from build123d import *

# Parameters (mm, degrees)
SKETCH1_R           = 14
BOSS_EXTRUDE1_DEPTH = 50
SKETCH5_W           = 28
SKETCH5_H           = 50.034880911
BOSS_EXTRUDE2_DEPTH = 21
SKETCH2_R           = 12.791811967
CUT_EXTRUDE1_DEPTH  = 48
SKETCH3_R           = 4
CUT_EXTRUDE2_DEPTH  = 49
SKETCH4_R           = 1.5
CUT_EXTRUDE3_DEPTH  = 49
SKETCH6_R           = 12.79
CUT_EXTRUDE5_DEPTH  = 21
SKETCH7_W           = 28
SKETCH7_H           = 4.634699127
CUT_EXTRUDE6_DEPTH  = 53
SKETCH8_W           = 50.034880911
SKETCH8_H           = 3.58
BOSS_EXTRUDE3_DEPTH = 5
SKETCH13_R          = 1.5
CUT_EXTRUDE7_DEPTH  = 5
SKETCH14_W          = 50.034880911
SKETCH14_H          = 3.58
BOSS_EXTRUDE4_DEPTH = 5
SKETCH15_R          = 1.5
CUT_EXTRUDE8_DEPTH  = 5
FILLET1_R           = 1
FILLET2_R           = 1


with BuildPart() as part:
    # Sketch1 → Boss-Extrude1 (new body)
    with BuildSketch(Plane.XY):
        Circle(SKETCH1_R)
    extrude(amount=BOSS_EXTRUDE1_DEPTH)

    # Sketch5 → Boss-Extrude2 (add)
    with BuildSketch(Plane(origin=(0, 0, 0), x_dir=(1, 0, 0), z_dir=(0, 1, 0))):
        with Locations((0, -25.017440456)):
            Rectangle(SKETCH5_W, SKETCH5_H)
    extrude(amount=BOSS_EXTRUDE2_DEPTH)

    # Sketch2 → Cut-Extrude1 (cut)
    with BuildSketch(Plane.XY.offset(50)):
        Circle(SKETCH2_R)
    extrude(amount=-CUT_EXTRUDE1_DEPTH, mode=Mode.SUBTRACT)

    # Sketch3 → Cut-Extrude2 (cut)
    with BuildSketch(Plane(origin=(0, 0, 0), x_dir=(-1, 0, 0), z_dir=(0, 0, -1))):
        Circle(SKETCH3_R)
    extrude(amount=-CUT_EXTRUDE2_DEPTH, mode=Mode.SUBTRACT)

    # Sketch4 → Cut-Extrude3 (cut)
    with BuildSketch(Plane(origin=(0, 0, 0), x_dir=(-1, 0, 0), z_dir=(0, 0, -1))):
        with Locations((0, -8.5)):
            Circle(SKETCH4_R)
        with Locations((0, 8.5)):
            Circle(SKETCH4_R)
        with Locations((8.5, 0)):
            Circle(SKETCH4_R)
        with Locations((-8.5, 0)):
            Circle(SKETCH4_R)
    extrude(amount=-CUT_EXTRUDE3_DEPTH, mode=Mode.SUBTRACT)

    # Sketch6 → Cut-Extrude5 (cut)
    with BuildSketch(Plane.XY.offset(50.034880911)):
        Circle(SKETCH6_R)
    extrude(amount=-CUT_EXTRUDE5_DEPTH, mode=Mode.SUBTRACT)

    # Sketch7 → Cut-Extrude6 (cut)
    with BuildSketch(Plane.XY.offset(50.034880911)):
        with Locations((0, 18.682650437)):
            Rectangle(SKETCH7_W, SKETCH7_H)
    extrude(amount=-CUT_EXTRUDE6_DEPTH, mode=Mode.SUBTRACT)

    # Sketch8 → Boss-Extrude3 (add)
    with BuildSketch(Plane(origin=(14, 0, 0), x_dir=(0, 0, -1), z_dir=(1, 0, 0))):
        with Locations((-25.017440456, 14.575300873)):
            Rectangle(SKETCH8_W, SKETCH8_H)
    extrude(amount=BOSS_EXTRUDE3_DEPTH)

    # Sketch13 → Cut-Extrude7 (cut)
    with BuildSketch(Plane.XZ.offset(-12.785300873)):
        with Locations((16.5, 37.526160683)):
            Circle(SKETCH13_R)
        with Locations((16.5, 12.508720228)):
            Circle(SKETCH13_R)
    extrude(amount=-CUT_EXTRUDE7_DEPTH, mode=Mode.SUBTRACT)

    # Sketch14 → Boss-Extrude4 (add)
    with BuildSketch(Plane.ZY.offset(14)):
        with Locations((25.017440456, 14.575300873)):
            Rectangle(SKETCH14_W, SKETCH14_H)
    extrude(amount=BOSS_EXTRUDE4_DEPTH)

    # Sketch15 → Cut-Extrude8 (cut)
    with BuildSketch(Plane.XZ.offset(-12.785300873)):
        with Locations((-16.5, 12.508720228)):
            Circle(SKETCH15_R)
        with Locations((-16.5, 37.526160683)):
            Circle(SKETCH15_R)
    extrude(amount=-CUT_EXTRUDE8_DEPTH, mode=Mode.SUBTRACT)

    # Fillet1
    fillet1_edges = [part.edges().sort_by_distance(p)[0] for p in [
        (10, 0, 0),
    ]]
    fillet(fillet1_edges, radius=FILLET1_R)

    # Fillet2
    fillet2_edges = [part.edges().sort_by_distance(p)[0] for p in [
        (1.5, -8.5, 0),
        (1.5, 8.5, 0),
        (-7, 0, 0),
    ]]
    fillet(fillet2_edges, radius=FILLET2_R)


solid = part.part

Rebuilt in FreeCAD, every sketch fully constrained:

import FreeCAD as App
import Part
import Sketcher

V = App.Vector


def edges_at(feature, points):
    """Names of the edges that pass closest to the given points."""
    edges = feature.Shape.Edges
    near = lambda p: min(range(len(edges)), key=lambda i: edges[i].distToShape(Part.Vertex(*p))[0])
    return sorted({f"Edge{near(p) + 1}" for p in points})

doc = App.newDocument("Part")
body = doc.addObject("PartDesign::Body", "Body")

# Sketch on XY plane
sketch1 = doc.addObject("Sketcher::SketchObject", "Sketch")
body.addObject(sketch1)
sketch1.AttachmentSupport = (doc.XY_Plane, [""])
sketch1.MapMode = "FlatFace"
sketch1.addGeometry(Part.Circle(V(0, 0, 0), V(0, 0, 1), 14), False)
sketch1.addConstraint(Sketcher.Constraint("Coincident", 0, 3, -1, 1))
sketch1.addConstraint(Sketcher.Constraint("Diameter", 0, 28.0))
pad1 = doc.addObject("PartDesign::Pad", "Pad")
body.addObject(pad1)
pad1.Profile = sketch1
pad1.Length = 50

# Sketch on XZ plane
sketch2 = doc.addObject("Sketcher::SketchObject", "Sketch001")
body.addObject(sketch2)
sketch2.AttachmentSupport = (doc.XZ_Plane, [""])
sketch2.MapMode = "FlatFace"
sketch2.addGeometry(Part.LineSegment(V(-14, 0, 0), V(-14, 50, 0)), False)
sketch2.addGeometry(Part.LineSegment(V(-14, 50, 0), V(14, 50, 0)), False)
sketch2.addGeometry(Part.LineSegment(V(14, 50, 0), V(14, 0, 0)), False)
sketch2.addGeometry(Part.LineSegment(V(14, 0, 0), V(-14, 0, 0)), False)
sketch2.addConstraint(Sketcher.Constraint("Coincident", 0, 2, 1, 1))
sketch2.addConstraint(Sketcher.Constraint("Coincident", 1, 2, 2, 1))
sketch2.addConstraint(Sketcher.Constraint("Coincident", 2, 2, 3, 1))
sketch2.addConstraint(Sketcher.Constraint("Coincident", 3, 2, 0, 1))
sketch2.addConstraint(Sketcher.Constraint("Vertical", 0))
sketch2.addConstraint(Sketcher.Constraint("Horizontal", 1))
sketch2.addConstraint(Sketcher.Constraint("Vertical", 2))
sketch2.addConstraint(Sketcher.Constraint("Horizontal", 3))
sketch2.addConstraint(Sketcher.Constraint("Symmetric", 2, 2, 3, 2, -1, 1))
sketch2.addConstraint(Sketcher.Constraint("DistanceX", 1, 1, 1, 2, 28.0))
sketch2.addConstraint(Sketcher.Constraint("DistanceY", 0, 1, 0, 2, 50.034881))
pad2 = doc.addObject("PartDesign::Pad", "Pad001")
body.addObject(pad2)
pad2.Profile = sketch2
pad2.Length = 21
pad2.Reversed = True

# Sketch on XY plane
sketch3 = doc.addObject("Sketcher::SketchObject", "Sketch002")
body.addObject(sketch3)
sketch3.AttachmentSupport = (doc.XY_Plane, [""])
sketch3.MapMode = "FlatFace"
sketch3.AttachmentOffset = App.Placement(V(0, 0, 50), App.Rotation())
sketch3.addGeometry(Part.Circle(V(0, 0, 0), V(0, 0, 1), 13), False)
sketch3.addConstraint(Sketcher.Constraint("Coincident", 0, 3, -1, 1))
sketch3.addConstraint(Sketcher.Constraint("Diameter", 0, 25.583624))
pocket1 = doc.addObject("PartDesign::Pocket", "Pocket")
body.addObject(pocket1)
pocket1.Profile = sketch3
pocket1.Length = 48

# Sketch on XY plane
sketch4 = doc.addObject("Sketcher::SketchObject", "Sketch003")
body.addObject(sketch4)
sketch4.AttachmentSupport = (doc.XY_Plane, [""])
sketch4.MapMode = "FlatFace"
sketch4.addGeometry(Part.Circle(V(0, 0, 0), V(0, 0, 1), 4), False)
sketch4.addConstraint(Sketcher.Constraint("Coincident", 0, 3, -1, 1))
sketch4.addConstraint(Sketcher.Constraint("Diameter", 0, 8.0))
pocket2 = doc.addObject("PartDesign::Pocket", "Pocket001")
body.addObject(pocket2)
pocket2.Profile = sketch4
pocket2.Length = 49
pocket2.Reversed = True

# Sketch on XY plane
sketch5 = doc.addObject("Sketcher::SketchObject", "Sketch004")
body.addObject(sketch5)
sketch5.AttachmentSupport = (doc.XY_Plane, [""])
sketch5.MapMode = "FlatFace"
sketch5.addGeometry(Part.Circle(V(0, -8.5, 0), V(0, 0, 1), 1.5), False)
sketch5.addGeometry(Part.Circle(V(0, 8.5, 0), V(0, 0, 1), 1.5), False)
sketch5.addGeometry(Part.Circle(V(-8.5, 0, 0), V(0, 0, 1), 1.5), False)
sketch5.addGeometry(Part.Circle(V(8.5, 0, 0), V(0, 0, 1), 1.5), False)
sketch5.addConstraint(Sketcher.Constraint("Equal", 0, 1))
sketch5.addConstraint(Sketcher.Constraint("Equal", 1, 2))
sketch5.addConstraint(Sketcher.Constraint("Equal", 2, 3))
sketch5.addConstraint(Sketcher.Constraint("Symmetric", 0, 3, 1, 3, -1, 1))
sketch5.addConstraint(Sketcher.Constraint("Symmetric", 2, 3, 3, 3, -1, 1))
sketch5.addConstraint(Sketcher.Constraint("PointOnObject", 0, 3, -2))
sketch5.addConstraint(Sketcher.Constraint("PointOnObject", 2, 3, -1))
sketch5.addConstraint(Sketcher.Constraint("Diameter", 0, 3.0))
sketch5.addConstraint(Sketcher.Constraint("DistanceY", 0, 3, 1, 3, 17.0))
sketch5.addConstraint(Sketcher.Constraint("DistanceX", 2, 3, 3, 3, 17.0))
pocket3 = doc.addObject("PartDesign::Pocket", "Pocket002")
body.addObject(pocket3)
pocket3.Profile = sketch5
pocket3.Length = 49
pocket3.Reversed = True

# Sketch on XY plane
sketch6 = doc.addObject("Sketcher::SketchObject", "Sketch005")
body.addObject(sketch6)
sketch6.AttachmentSupport = (doc.XY_Plane, [""])
sketch6.MapMode = "FlatFace"
sketch6.AttachmentOffset = App.Placement(V(0, 0, 50.034881), App.Rotation())
sketch6.addGeometry(Part.Circle(V(0, 0, 0), V(0, 0, 1), 13), False)
sketch6.addConstraint(Sketcher.Constraint("Coincident", 0, 3, -1, 1))
sketch6.addConstraint(Sketcher.Constraint("Diameter", 0, 25.58))
pocket4 = doc.addObject("PartDesign::Pocket", "Pocket003")
body.addObject(pocket4)
pocket4.Profile = sketch6
pocket4.Length = 21

# Sketch on XY plane
sketch7 = doc.addObject("Sketcher::SketchObject", "Sketch006")
body.addObject(sketch7)
sketch7.AttachmentSupport = (doc.XY_Plane, [""])
sketch7.MapMode = "FlatFace"
sketch7.AttachmentOffset = App.Placement(V(0, 0, 50.034881), App.Rotation())
sketch7.addGeometry(Part.LineSegment(V(-14, 21, 0), V(-14, 16.4, 0)), False)
sketch7.addGeometry(Part.LineSegment(V(-14, 16.4, 0), V(14, 16.4, 0)), False)
sketch7.addGeometry(Part.LineSegment(V(14, 16.4, 0), V(14, 21, 0)), False)
sketch7.addGeometry(Part.LineSegment(V(14, 21, 0), V(-14, 21, 0)), False)
sketch7.addConstraint(Sketcher.Constraint("Coincident", 0, 2, 1, 1))
sketch7.addConstraint(Sketcher.Constraint("Coincident", 1, 2, 2, 1))
sketch7.addConstraint(Sketcher.Constraint("Coincident", 2, 2, 3, 1))
sketch7.addConstraint(Sketcher.Constraint("Coincident", 3, 2, 0, 1))
sketch7.addConstraint(Sketcher.Constraint("Vertical", 0))
sketch7.addConstraint(Sketcher.Constraint("Horizontal", 1))
sketch7.addConstraint(Sketcher.Constraint("Vertical", 2))
sketch7.addConstraint(Sketcher.Constraint("Horizontal", 3))
sketch7.addConstraint(Sketcher.Constraint("DistanceX", 1, 1, 1, 2, 28.0))
sketch7.addConstraint(Sketcher.Constraint("DistanceX", 0, 2, -1, 1, 14.0))
sketch7.addConstraint(Sketcher.Constraint("DistanceY", -1, 1, 2, 2, 21.0))
sketch7.addConstraint(Sketcher.Constraint("DistanceY", 0, 2, 0, 1, 4.634699))
pocket5 = doc.addObject("PartDesign::Pocket", "Pocket004")
body.addObject(pocket5)
pocket5.Profile = sketch7
pocket5.Length = 53

# Sketch on YZ plane
sketch8 = doc.addObject("Sketcher::SketchObject", "Sketch007")
body.addObject(sketch8)
sketch8.AttachmentSupport = (doc.YZ_Plane, [""])
sketch8.MapMode = "FlatFace"
sketch8.AttachmentOffset = App.Placement(V(0, 0, 14), App.Rotation())
sketch8.addGeometry(Part.LineSegment(V(16.4, 50, 0), V(12.8, 50, 0)), False)
sketch8.addGeometry(Part.LineSegment(V(12.8, 50, 0), V(12.8, 0, 0)), False)
sketch8.addGeometry(Part.LineSegment(V(12.8, 0, 0), V(16.4, 0, 0)), False)
sketch8.addGeometry(Part.LineSegment(V(16.4, 0, 0), V(16.4, 50, 0)), False)
sketch8.addConstraint(Sketcher.Constraint("Coincident", 0, 2, 1, 1))
sketch8.addConstraint(Sketcher.Constraint("Coincident", 1, 2, 2, 1))
sketch8.addConstraint(Sketcher.Constraint("Coincident", 2, 2, 3, 1))
sketch8.addConstraint(Sketcher.Constraint("Coincident", 3, 2, 0, 1))
sketch8.addConstraint(Sketcher.Constraint("Horizontal", 0))
sketch8.addConstraint(Sketcher.Constraint("Vertical", 1))
sketch8.addConstraint(Sketcher.Constraint("Horizontal", 2))
sketch8.addConstraint(Sketcher.Constraint("Vertical", 3))
sketch8.addConstraint(Sketcher.Constraint("PointOnObject", 1, 2, -1))
sketch8.addConstraint(Sketcher.Constraint("DistanceX", 0, 2, 0, 1, 3.58))
sketch8.addConstraint(Sketcher.Constraint("DistanceY", 1, 2, 1, 1, 50.034881))
sketch8.addConstraint(Sketcher.Constraint("DistanceX", -1, 1, 0, 2, 12.785301))
pad3 = doc.addObject("PartDesign::Pad", "Pad002")
body.addObject(pad3)
pad3.Profile = sketch8
pad3.Length = 5

# Sketch on XZ plane
sketch9 = doc.addObject("Sketcher::SketchObject", "Sketch008")
body.addObject(sketch9)
sketch9.AttachmentSupport = (doc.XZ_Plane, [""])
sketch9.MapMode = "FlatFace"
sketch9.AttachmentOffset = App.Placement(V(0, 0, -12.785301), App.Rotation())
sketch9.addGeometry(Part.Circle(V(16.5, 37.5, 0), V(0, 0, 1), 1.5), False)
sketch9.addGeometry(Part.Circle(V(16.5, 12.5, 0), V(0, 0, 1), 1.5), False)
sketch9.addConstraint(Sketcher.Constraint("Equal", 0, 1))
sketch9.addConstraint(Sketcher.Constraint("Vertical", 0, 3, 1, 3))
sketch9.addConstraint(Sketcher.Constraint("Diameter", 0, 3.0))
sketch9.addConstraint(Sketcher.Constraint("DistanceX", -1, 1, 0, 3, 16.5))
sketch9.addConstraint(Sketcher.Constraint("DistanceY", -1, 1, 0, 3, 37.526161))
sketch9.addConstraint(Sketcher.Constraint("DistanceY", -1, 1, 1, 3, 12.50872))
pocket6 = doc.addObject("PartDesign::Pocket", "Pocket005")
body.addObject(pocket6)
pocket6.Profile = sketch9
pocket6.Length = 5

# Sketch on YZ plane
sketch10 = doc.addObject("Sketcher::SketchObject", "Sketch009")
body.addObject(sketch10)
sketch10.AttachmentSupport = (doc.YZ_Plane, [""])
sketch10.MapMode = "FlatFace"
sketch10.AttachmentOffset = App.Placement(V(0, 0, -14), App.Rotation())
sketch10.addGeometry(Part.LineSegment(V(16.4, 0, 0), V(12.8, 0, 0)), False)
sketch10.addGeometry(Part.LineSegment(V(12.8, 0, 0), V(12.8, 50, 0)), False)
sketch10.addGeometry(Part.LineSegment(V(12.8, 50, 0), V(16.4, 50, 0)), False)
sketch10.addGeometry(Part.LineSegment(V(16.4, 50, 0), V(16.4, 0, 0)), False)
sketch10.addConstraint(Sketcher.Constraint("Coincident", 0, 2, 1, 1))
sketch10.addConstraint(Sketcher.Constraint("Coincident", 1, 2, 2, 1))
sketch10.addConstraint(Sketcher.Constraint("Coincident", 2, 2, 3, 1))
sketch10.addConstraint(Sketcher.Constraint("Coincident", 3, 2, 0, 1))
sketch10.addConstraint(Sketcher.Constraint("Horizontal", 0))
sketch10.addConstraint(Sketcher.Constraint("Vertical", 1))
sketch10.addConstraint(Sketcher.Constraint("Horizontal", 2))
sketch10.addConstraint(Sketcher.Constraint("Vertical", 3))
sketch10.addConstraint(Sketcher.Constraint("PointOnObject", 0, 2, -1))
sketch10.addConstraint(Sketcher.Constraint("DistanceX", 0, 2, 0, 1, 3.58))
sketch10.addConstraint(Sketcher.Constraint("DistanceY", 1, 1, 1, 2, 50.034881))
sketch10.addConstraint(Sketcher.Constraint("DistanceX", -1, 1, 0, 2, 12.785301))
pad4 = doc.addObject("PartDesign::Pad", "Pad003")
body.addObject(pad4)
pad4.Profile = sketch10
pad4.Length = 5
pad4.Reversed = True

# Sketch on XZ plane
sketch11 = doc.addObject("Sketcher::SketchObject", "Sketch010")
body.addObject(sketch11)
sketch11.AttachmentSupport = (doc.XZ_Plane, [""])
sketch11.MapMode = "FlatFace"
sketch11.AttachmentOffset = App.Placement(V(0, 0, -12.785301), App.Rotation())
sketch11.addGeometry(Part.Circle(V(-16.5, 12.5, 0), V(0, 0, 1), 1.5), False)
sketch11.addGeometry(Part.Circle(V(-16.5, 37.5, 0), V(0, 0, 1), 1.5), False)
sketch11.addConstraint(Sketcher.Constraint("Equal", 0, 1))
sketch11.addConstraint(Sketcher.Constraint("Vertical", 0, 3, 1, 3))
sketch11.addConstraint(Sketcher.Constraint("Diameter", 0, 3.0))
sketch11.addConstraint(Sketcher.Constraint("DistanceX", 0, 3, -1, 1, 16.5))
sketch11.addConstraint(Sketcher.Constraint("DistanceY", -1, 1, 0, 3, 12.50872))
sketch11.addConstraint(Sketcher.Constraint("DistanceY", -1, 1, 1, 3, 37.526161))
pocket7 = doc.addObject("PartDesign::Pocket", "Pocket006")
body.addObject(pocket7)
pocket7.Profile = sketch11
pocket7.Length = 5
doc.recompute()

fillet = doc.addObject("PartDesign::Fillet", "Fillet")
body.addObject(fillet)
fillet.Base = (pocket7, edges_at(pocket7, [(10, 0, 0)]))
fillet.Radius = 1
doc.recompute()

fillet2 = doc.addObject("PartDesign::Fillet", "Fillet001")
body.addObject(fillet2)
fillet2.Base = (fillet, edges_at(fillet, [(1.5, -8.5, 0), (1.5, 8.5, 0), (-7, 0, 0)]))
fillet2.Radius = 1

doc.recompute()
